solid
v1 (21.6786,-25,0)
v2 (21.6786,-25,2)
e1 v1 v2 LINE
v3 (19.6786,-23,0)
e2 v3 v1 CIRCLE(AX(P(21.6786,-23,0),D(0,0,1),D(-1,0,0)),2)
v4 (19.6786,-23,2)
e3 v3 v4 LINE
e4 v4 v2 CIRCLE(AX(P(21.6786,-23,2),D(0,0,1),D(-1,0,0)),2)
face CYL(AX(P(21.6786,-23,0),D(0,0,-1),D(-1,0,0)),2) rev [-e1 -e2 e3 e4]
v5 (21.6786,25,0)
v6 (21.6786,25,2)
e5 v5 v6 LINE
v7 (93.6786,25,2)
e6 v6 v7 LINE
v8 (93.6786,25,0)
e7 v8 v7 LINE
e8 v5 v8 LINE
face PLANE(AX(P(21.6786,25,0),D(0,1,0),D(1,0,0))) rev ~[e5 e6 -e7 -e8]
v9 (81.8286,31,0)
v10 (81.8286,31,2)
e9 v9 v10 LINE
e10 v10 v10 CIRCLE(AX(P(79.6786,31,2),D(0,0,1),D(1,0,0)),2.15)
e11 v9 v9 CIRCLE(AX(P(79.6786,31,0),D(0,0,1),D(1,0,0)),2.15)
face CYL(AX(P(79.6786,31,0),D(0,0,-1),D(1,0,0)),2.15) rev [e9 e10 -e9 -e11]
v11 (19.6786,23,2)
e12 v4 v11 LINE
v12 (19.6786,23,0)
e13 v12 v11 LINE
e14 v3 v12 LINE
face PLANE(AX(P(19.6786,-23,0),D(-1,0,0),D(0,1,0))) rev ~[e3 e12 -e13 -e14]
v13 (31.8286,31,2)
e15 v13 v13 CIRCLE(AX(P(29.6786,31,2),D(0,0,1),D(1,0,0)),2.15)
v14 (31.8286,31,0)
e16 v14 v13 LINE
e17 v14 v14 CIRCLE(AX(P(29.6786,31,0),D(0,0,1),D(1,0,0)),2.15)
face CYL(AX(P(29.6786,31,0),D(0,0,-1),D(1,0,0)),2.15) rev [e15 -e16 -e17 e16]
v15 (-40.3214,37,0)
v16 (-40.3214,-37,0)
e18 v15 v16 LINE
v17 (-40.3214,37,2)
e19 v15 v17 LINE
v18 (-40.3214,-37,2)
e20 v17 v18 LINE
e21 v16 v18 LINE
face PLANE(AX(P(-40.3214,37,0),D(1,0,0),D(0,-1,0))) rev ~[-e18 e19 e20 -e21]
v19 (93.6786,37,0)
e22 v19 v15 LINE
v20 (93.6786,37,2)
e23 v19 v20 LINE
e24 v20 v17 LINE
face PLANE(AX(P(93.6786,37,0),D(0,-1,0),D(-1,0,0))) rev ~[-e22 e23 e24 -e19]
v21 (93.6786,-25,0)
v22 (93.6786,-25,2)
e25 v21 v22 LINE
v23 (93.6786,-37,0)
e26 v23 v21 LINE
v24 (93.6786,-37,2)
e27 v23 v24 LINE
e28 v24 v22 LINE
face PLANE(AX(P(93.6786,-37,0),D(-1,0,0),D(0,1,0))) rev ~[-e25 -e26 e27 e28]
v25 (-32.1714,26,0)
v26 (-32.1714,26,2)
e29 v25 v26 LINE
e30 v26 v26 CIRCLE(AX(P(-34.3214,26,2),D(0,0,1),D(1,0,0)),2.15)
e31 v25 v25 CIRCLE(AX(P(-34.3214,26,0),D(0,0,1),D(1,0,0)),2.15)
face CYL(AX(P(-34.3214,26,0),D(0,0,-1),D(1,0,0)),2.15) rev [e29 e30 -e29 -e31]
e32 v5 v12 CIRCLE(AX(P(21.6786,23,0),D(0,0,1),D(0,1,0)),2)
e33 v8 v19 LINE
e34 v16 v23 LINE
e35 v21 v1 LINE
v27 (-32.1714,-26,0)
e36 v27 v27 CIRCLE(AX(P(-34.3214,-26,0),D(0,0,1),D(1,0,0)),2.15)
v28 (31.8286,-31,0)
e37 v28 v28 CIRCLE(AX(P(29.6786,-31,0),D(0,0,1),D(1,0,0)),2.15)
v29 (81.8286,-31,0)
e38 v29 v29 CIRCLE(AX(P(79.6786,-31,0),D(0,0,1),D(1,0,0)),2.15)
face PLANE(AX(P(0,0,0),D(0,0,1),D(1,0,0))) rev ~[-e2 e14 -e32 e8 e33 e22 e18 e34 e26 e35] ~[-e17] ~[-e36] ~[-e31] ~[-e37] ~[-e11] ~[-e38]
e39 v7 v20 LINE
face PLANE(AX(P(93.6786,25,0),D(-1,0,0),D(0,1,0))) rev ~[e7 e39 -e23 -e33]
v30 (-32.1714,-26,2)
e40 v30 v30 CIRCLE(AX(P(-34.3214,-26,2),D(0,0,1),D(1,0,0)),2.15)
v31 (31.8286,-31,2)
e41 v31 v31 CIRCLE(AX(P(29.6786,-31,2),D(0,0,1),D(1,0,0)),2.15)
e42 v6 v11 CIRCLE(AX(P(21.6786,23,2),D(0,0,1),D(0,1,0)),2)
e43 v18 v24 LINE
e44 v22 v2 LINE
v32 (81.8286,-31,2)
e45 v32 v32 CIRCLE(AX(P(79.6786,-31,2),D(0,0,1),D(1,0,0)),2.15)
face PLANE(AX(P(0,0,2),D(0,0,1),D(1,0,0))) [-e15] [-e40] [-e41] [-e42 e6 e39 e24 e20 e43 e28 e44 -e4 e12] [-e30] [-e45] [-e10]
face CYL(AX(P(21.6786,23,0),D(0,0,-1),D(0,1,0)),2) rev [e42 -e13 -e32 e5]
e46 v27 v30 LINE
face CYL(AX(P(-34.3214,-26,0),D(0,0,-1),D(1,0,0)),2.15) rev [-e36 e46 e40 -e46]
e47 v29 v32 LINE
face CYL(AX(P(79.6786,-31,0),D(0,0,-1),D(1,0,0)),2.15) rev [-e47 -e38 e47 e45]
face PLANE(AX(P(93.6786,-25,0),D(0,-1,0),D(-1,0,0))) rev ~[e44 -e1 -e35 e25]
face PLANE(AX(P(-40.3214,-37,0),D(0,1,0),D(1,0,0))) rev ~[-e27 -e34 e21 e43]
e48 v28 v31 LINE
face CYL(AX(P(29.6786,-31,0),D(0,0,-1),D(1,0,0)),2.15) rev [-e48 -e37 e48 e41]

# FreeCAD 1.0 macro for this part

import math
import FreeCAD as App
import Part
import Sketcher

doc = App.newDocument("Part")
body = doc.addObject("PartDesign::Body", "Body")

# Sketch on XY plane
sketch1 = body.newObject("Sketcher::SketchObject", "Sketch")
sketch1.AttachmentSupport = (doc.getObject("XY_Plane"), [""])
sketch1.MapMode = "FlatFace"
sketch1.addGeometry(Part.LineSegment(App.Vector(-40.3, 37, 0), App.Vector(-40.3, -37, 0)), False)
sketch1.addGeometry(Part.LineSegment(App.Vector(-40.3, -37, 0), App.Vector(93.7, -37, 0)), False)
sketch1.addGeometry(Part.LineSegment(App.Vector(93.7, -37, 0), App.Vector(93.7, -25, 0)), False)
sketch1.addGeometry(Part.LineSegment(App.Vector(93.7, -25, 0), App.Vector(21.7, -25, 0)), False)
sketch1.addGeometry(Part.ArcOfCircle(Part.Circle(App.Vector(21.7, -23, 0), App.Vector(0, 0, 1), 2), math.radians(180), math.radians(270)), False)
sketch1.addGeometry(Part.LineSegment(App.Vector(19.7, -23, 0), App.Vector(19.7, 23, 0)), False)
sketch1.addGeometry(Part.ArcOfCircle(Part.Circle(App.Vector(21.7, 23, 0), App.Vector(0, 0, 1), 2), math.radians(90), math.radians(180)), False)
sketch1.addGeometry(Part.LineSegment(App.Vector(21.7, 25, 0), App.Vector(93.7, 25, 0)), False)
sketch1.addGeometry(Part.LineSegment(App.Vector(93.7, 25, 0), App.Vector(93.7, 37, 0)), False)
sketch1.addGeometry(Part.LineSegment(App.Vector(93.7, 37, 0), App.Vector(-40.3, 37, 0)), False)
sketch1.addGeometry(Part.Circle(App.Vector(-34.3, -26, 0), App.Vector(0, 0, 1), 2.1), False)
sketch1.addGeometry(Part.Circle(App.Vector(29.7, -31, 0), App.Vector(0, 0, 1), 2.1), False)
sketch1.addGeometry(Part.Circle(App.Vector(79.7, -31, 0), App.Vector(0, 0, 1), 2.1), False)
sketch1.addGeometry(Part.Circle(App.Vector(-34.3, 26, 0), App.Vector(0, 0, 1), 2.1), False)
sketch1.addGeometry(Part.Circle(App.Vector(29.7, 31, 0), App.Vector(0, 0, 1), 2.1), False)
sketch1.addGeometry(Part.Circle(App.Vector(79.7, 31, 0), App.Vector(0, 0, 1), 2.1), False)
sketch1.addConstraint(Sketcher.Constraint("Coincident", 0, 2, 1, 1))
sketch1.addConstraint(Sketcher.Constraint("Coincident", 1, 2, 2, 1))
sketch1.addConstraint(Sketcher.Constraint("Coincident", 2, 2, 3, 1))
sketch1.addConstraint(Sketcher.Constraint("Tangent", 3, 2, 4, 2))
sketch1.addConstraint(Sketcher.Constraint("Tangent", 4, 1, 5, 1))
sketch1.addConstraint(Sketcher.Constraint("Tangent", 5, 2, 6, 2))
sketch1.addConstraint(Sketcher.Constraint("Tangent", 6, 1, 7, 1))
sketch1.addConstraint(Sketcher.Constraint("Coincident", 7, 2, 8, 1))
sketch1.addConstraint(Sketcher.Constraint("Coincident", 8, 2, 9, 1))
sketch1.addConstraint(Sketcher.Constraint("Coincident", 9, 2, 0, 1))
sketch1.addConstraint(Sketcher.Constraint("Vertical", 0))
sketch1.addConstraint(Sketcher.Constraint("Horizontal", 1))
sketch1.addConstraint(Sketcher.Constraint("Vertical", 2))
sketch1.addConstraint(Sketcher.Constraint("Horizontal", 3))
sketch1.addConstraint(Sketcher.Constraint("Vertical", 5))
sketch1.addConstraint(Sketcher.Constraint("Horizontal", 7))
sketch1.addConstraint(Sketcher.Constraint("Vertical", 8))
sketch1.addConstraint(Sketcher.Constraint("Horizontal", 9))
sketch1.addConstraint(Sketcher.Constraint("Equal", 4, 6))
sketch1.addConstraint(Sketcher.Constraint("Equal", 10, 11))
sketch1.addConstraint(Sketcher.Constraint("Equal", 11, 12))
sketch1.addConstraint(Sketcher.Constraint("Equal", 12, 13))
sketch1.addConstraint(Sketcher.Constraint("Equal", 13, 14))
sketch1.addConstraint(Sketcher.Constraint("Equal", 14, 15))
sketch1.addConstraint(Sketcher.Constraint("Symmetric", 10, 3, 13, 3, -1))
sketch1.addConstraint(Sketcher.Constraint("Symmetric", 11, 3, 14, 3, -1))
sketch1.addConstraint(Sketcher.Constraint("Symmetric", 12, 3, 15, 3, -1))
sketch1.addConstraint(Sketcher.Constraint("Symmetric", 2, 2, 7, 2, -1))
sketch1.addConstraint(Sketcher.Constraint("Horizontal", 11, 3, 12, 3))
sketch1.addConstraint(Sketcher.Constraint("Equal", 2, 8))
sketch1.addConstraint(Sketcher.Constraint("Radius", 4, 2.0))
sketch1.addConstraint(Sketcher.Constraint("Diameter", 10, 4.3))
sketch1.addConstraint(Sketcher.Constraint("DistanceX", 1, 1, 1, 2, 134.0))
sketch1.addConstraint(Sketcher.Constraint("DistanceY", 0, 2, 0, 1, 74.0))
sketch1.addConstraint(Sketcher.Constraint("DistanceY", 2, 2, -1, 1, 25.0))
sketch1.addConstraint(Sketcher.Constraint("DistanceX", 10, 3, 11, 3, 64.0))
sketch1.addConstraint(Sketcher.Constraint("DistanceX", 11, 3, 12, 3, 50.0))
sketch1.addConstraint(Sketcher.Constraint("DistanceY", 10, 3, 13, 3, 52.0))
sketch1.addConstraint(Sketcher.Constraint("DistanceX", 0, 2, 10, 3, 6.0))
sketch1.addConstraint(Sketcher.Constraint("DistanceY", 0, 2, 11, 3, 6.0))
sketch1.addConstraint(Sketcher.Constraint("DistanceX", 9, 2, 5, 2, 60.0))
sketch1.addConstraint(Sketcher.Constraint("DistanceX", -1, 1, 4, 3, 21.6786))
pad1 = body.newObject("PartDesign::Pad", "Pad")
pad1.Profile = sketch1
pad1.Length = 2

doc.recompute()
